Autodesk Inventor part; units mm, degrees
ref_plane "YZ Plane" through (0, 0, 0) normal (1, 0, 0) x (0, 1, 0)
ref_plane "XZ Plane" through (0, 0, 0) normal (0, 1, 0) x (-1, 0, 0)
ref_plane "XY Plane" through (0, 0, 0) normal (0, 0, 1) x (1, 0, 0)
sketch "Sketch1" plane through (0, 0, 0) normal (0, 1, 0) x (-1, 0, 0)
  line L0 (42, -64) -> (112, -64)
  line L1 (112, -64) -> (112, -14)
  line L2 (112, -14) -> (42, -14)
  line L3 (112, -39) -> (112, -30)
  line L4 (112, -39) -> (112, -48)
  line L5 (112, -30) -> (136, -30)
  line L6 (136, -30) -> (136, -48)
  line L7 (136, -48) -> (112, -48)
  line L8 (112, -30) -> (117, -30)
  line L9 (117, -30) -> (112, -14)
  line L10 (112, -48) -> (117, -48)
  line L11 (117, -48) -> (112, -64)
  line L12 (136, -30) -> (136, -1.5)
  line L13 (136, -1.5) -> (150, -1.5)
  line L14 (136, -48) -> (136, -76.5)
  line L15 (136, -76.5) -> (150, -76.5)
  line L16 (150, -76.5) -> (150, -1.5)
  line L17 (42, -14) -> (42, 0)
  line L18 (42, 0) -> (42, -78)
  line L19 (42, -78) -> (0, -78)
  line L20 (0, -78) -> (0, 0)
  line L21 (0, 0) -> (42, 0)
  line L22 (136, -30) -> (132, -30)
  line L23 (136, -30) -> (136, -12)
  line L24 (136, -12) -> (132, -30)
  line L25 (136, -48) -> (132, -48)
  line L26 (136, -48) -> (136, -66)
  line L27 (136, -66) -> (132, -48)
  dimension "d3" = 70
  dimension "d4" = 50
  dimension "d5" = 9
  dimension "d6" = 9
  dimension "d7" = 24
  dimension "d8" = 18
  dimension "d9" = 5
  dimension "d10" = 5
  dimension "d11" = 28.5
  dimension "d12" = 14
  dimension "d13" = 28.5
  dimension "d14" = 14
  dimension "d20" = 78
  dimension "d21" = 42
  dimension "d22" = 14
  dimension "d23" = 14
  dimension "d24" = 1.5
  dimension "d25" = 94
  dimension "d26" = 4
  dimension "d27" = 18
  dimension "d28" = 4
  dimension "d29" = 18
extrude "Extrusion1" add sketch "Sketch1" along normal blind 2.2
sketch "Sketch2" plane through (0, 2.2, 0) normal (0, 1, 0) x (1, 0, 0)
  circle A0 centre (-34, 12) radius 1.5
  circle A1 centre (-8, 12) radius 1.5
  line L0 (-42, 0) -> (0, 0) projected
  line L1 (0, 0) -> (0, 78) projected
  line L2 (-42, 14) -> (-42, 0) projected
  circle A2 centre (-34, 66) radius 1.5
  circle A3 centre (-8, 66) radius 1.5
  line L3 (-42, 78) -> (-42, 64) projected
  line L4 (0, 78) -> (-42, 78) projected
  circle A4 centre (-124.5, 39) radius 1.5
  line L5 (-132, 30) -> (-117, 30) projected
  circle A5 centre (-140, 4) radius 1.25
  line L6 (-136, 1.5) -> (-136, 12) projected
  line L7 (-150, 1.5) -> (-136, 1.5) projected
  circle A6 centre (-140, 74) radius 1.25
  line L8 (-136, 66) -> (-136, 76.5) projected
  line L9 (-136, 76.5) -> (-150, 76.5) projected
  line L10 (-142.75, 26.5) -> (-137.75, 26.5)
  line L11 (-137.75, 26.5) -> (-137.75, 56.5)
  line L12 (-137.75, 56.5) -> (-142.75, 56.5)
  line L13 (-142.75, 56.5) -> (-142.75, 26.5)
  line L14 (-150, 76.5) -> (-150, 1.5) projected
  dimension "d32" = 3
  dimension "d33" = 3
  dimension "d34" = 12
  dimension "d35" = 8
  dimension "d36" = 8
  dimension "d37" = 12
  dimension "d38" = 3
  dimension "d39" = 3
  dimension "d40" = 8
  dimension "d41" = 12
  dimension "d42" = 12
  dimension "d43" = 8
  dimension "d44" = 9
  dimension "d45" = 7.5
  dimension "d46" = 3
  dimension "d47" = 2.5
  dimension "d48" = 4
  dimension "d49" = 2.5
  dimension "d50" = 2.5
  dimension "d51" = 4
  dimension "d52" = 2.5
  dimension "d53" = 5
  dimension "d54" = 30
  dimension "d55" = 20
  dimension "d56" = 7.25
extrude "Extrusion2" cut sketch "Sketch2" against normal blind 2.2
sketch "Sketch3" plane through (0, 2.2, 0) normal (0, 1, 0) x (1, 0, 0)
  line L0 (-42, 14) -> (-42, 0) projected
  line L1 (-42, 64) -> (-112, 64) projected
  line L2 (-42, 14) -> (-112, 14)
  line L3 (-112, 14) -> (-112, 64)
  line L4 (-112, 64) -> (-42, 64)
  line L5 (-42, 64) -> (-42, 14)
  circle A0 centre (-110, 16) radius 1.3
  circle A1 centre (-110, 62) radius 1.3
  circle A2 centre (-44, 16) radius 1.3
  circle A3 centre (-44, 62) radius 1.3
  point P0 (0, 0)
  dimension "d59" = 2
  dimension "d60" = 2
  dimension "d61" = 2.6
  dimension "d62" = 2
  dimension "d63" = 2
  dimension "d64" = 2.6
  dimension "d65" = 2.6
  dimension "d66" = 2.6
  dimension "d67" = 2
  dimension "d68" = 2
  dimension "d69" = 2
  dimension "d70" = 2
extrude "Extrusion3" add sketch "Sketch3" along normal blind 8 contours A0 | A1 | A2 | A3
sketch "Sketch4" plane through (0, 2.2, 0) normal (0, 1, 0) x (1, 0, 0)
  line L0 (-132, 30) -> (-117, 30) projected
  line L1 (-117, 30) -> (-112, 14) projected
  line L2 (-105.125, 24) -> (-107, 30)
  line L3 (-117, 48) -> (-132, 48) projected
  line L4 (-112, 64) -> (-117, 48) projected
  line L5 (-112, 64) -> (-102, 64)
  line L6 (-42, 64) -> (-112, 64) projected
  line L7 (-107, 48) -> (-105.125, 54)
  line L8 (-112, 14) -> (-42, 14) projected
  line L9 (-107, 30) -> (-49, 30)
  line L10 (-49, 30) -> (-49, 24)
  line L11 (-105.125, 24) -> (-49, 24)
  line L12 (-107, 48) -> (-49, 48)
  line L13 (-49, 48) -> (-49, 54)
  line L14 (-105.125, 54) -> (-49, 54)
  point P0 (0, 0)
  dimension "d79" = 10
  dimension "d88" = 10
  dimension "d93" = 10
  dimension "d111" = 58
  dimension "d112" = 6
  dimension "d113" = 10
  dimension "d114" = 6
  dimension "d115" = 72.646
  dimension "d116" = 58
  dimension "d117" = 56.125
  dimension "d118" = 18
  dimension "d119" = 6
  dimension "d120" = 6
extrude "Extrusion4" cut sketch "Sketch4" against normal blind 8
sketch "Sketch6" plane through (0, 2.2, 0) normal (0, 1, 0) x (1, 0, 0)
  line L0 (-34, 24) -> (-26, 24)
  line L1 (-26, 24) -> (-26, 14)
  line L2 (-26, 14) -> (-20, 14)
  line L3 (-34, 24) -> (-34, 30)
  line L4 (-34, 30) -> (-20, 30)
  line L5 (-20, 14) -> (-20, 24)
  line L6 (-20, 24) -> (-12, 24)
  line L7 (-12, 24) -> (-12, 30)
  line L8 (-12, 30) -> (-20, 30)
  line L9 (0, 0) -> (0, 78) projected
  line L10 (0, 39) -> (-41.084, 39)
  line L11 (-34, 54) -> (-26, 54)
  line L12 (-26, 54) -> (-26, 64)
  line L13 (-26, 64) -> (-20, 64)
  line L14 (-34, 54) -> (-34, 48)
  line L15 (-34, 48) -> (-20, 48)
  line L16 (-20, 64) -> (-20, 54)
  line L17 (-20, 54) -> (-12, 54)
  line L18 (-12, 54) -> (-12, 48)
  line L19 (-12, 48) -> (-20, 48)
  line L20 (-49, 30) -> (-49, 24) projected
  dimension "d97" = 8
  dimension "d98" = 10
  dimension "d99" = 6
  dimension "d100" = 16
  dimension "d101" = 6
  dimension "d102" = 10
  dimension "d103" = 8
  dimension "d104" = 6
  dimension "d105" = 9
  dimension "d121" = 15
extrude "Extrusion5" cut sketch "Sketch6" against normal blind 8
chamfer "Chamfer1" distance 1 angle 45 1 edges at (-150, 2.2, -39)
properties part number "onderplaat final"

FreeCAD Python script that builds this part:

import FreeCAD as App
import Part
import Sketcher
Q = App.Units.Quantity


def edges_at(feature, points):
    """Names of the edges that pass closest to the given points."""
    edges = feature.Shape.Edges
    near = lambda p: min(range(len(edges)), key=lambda i: edges[i].distToShape(Part.Vertex(*p))[0])
    return sorted({f"Edge{near(p) + 1}" for p in points})

doc = App.newDocument("Part")
body = doc.addObject("PartDesign::Body", "Body")

# Sketch on XZ plane
sketch1 = body.newObject("Sketcher::SketchObject", "Sketch")
sketch1.AttachmentSupport = (doc.getObject("XZ_Plane"), [""])
sketch1.MapMode = "FlatFace"
sketch1.addGeometry([
    Part.LineSegment(App.Vector(-112, -14, 0), App.Vector(-42, -14, 0)),  # 0
    Part.LineSegment(App.Vector(-42, -14, 0), App.Vector(-42, 0, 0)),  # 1
    Part.LineSegment(App.Vector(-42, 0, 0), App.Vector(0, 0, 0)),  # 2
    Part.LineSegment(App.Vector(0, 0, 0), App.Vector(0, -78, 0)),  # 3
    Part.LineSegment(App.Vector(0, -78, 0), App.Vector(-42, -78, 0)),  # 4
    Part.LineSegment(App.Vector(-42, -78, 0), App.Vector(-42, -64, 0)),  # 5
    Part.LineSegment(App.Vector(-42, -64, 0), App.Vector(-112, -64, 0)),  # 6
    Part.LineSegment(App.Vector(-112, -64, 0), App.Vector(-117, -48, 0)),  # 7
    Part.LineSegment(App.Vector(-117, -48, 0), App.Vector(-132, -48, 0)),  # 8
    Part.LineSegment(App.Vector(-132, -48, 0), App.Vector(-136, -66, 0)),  # 9
    Part.LineSegment(App.Vector(-136, -66, 0), App.Vector(-136, -76, 0)),  # 10
    Part.LineSegment(App.Vector(-136, -76, 0), App.Vector(-150, -76, 0)),  # 11
    Part.LineSegment(App.Vector(-150, -76, 0), App.Vector(-150, -2, 0)),  # 12
    Part.LineSegment(App.Vector(-150, -2, 0), App.Vector(-136, -2, 0)),  # 13
    Part.LineSegment(App.Vector(-136, -2, 0), App.Vector(-136, -12, 0)),  # 14
    Part.LineSegment(App.Vector(-136, -12, 0), App.Vector(-132, -30, 0)),  # 15
    Part.LineSegment(App.Vector(-132, -30, 0), App.Vector(-117, -30, 0)),  # 16
    Part.LineSegment(App.Vector(-117, -30, 0), App.Vector(-112, -14, 0)),  # 17
], False)
sketch1.addConstraint([
    Sketcher.Constraint("Coincident", 0, 2, 1, 1),
    Sketcher.Constraint("Coincident", 1, 2, 2, 1),
    Sketcher.Constraint("Coincident", 2, 2, 3, 1),
    Sketcher.Constraint("Coincident", 3, 2, 4, 1),
    Sketcher.Constraint("Coincident", 4, 2, 5, 1),
    Sketcher.Constraint("Coincident", 5, 2, 6, 1),
    Sketcher.Constraint("Coincident", 6, 2, 7, 1),
    Sketcher.Constraint("Coincident", 7, 2, 8, 1),
    Sketcher.Constraint("Coincident", 8, 2, 9, 1),
    Sketcher.Constraint("Coincident", 9, 2, 10, 1),
    Sketcher.Constraint("Coincident", 10, 2, 11, 1),
    Sketcher.Constraint("Coincident", 11, 2, 12, 1),
    Sketcher.Constraint("Coincident", 12, 2, 13, 1),
    Sketcher.Constraint("Coincident", 13, 2, 14, 1),
    Sketcher.Constraint("Coincident", 14, 2, 15, 1),
    Sketcher.Constraint("Coincident", 15, 2, 16, 1),
    Sketcher.Constraint("Coincident", 16, 2, 17, 1),
    Sketcher.Constraint("Coincident", 17, 2, 0, 1),
    Sketcher.Constraint("Horizontal", 0),
    Sketcher.Constraint("Vertical", 1),
    Sketcher.Constraint("Horizontal", 2),
    Sketcher.Constraint("Vertical", 3),
    Sketcher.Constraint("Horizontal", 4),
    Sketcher.Constraint("Vertical", 5),
    Sketcher.Constraint("Horizontal", 6),
    Sketcher.Constraint("Horizontal", 8),
    Sketcher.Constraint("Vertical", 10),
    Sketcher.Constraint("Horizontal", 11),
    Sketcher.Constraint("Vertical", 12),
    Sketcher.Constraint("Horizontal", 13),
    Sketcher.Constraint("Vertical", 14),
    Sketcher.Constraint("Horizontal", 16),
    Sketcher.Constraint("Coincident", 2, 2, -1, 1),
    Sketcher.Constraint("Vertical", 1, 2, 4, 2),
    Sketcher.Constraint("Vertical", 10, 2, 13, 2),
    Sketcher.Constraint("Vertical", 8, 2, 15, 2),
    Sketcher.Constraint("Vertical", 7, 2, 16, 2),
    Sketcher.Constraint("Vertical", 6, 2, 17, 2),
    Sketcher.Constraint("Equal", 13, 1),
    Sketcher.Constraint("Equal", 1, 5),
    Sketcher.Constraint("Equal", 10, 14),
    Sketcher.Constraint("Equal", 9, 15),
    Sketcher.Constraint("Equal", 7, 17),
    Sketcher.Constraint("DistanceX", 0, 1, 0, 2, Q("70 mm")),
    Sketcher.Constraint("DistanceX", 2, 1, 2, 2, Q("42 mm")),
    Sketcher.Constraint("DistanceX", 11, 2, 11, 1, Q("14 mm")),
    Sketcher.Constraint("DistanceY", 3, 2, 3, 1, Q("78 mm")),
    Sketcher.Constraint("DistanceX", 7, 2, 6, 2, Q("5 mm")),
    Sketcher.Constraint("DistanceX", 9, 2, 8, 2, Q("4 mm")),
    Sketcher.Constraint("DistanceY", 9, 2, 8, 2, Q("18 mm")),
    Sketcher.Constraint("DistanceX", 9, 2, 6, 2, Q("24 mm")),
    Sketcher.Constraint("DistanceY", 8, 2, 15, 2, Q("18 mm")),
    Sketcher.Constraint("DistanceY", 12, 2, -1, 1, Q("1.5 mm")),
])
pad1 = body.newObject("PartDesign::Pad", "Pad")
pad1.Profile = sketch1
pad1.Length = 2.2
pad1.Reversed = True

# Sketch on XZ plane
sketch2 = body.newObject("Sketcher::SketchObject", "Sketch001")
sketch2.AttachmentSupport = (doc.getObject("XZ_Plane"), [""])
sketch2.MapMode = "FlatFace"
sketch2.AttachmentOffset = App.Placement(App.Vector(0, 0, -2.2), App.Rotation())
sketch2.addGeometry([
    Part.Circle(App.Vector(-34, -12, 0), App.Vector(0, 0, 1), 1.5),  # 0
    Part.Circle(App.Vector(-8, -12, 0), App.Vector(0, 0, 1), 1.5),  # 1
    Part.Circle(App.Vector(-34, -66, 0), App.Vector(0, 0, 1), 1.5),  # 2
    Part.Circle(App.Vector(-8, -66, 0), App.Vector(0, 0, 1), 1.5),  # 3
    Part.Circle(App.Vector(-124.5, -39, 0), App.Vector(0, 0, 1), 1.5),  # 4
    Part.Circle(App.Vector(-140, -4, 0), App.Vector(0, 0, 1), 1.2),  # 5
    Part.Circle(App.Vector(-140, -74, 0), App.Vector(0, 0, 1), 1.2),  # 6
    Part.LineSegment(App.Vector(-142.8, -56.5, 0), App.Vector(-142.8, -26.5, 0)),  # 7
    Part.LineSegment(App.Vector(-142.8, -26.5, 0), App.Vector(-137.8, -26.5, 0)),  # 8
    Part.LineSegment(App.Vector(-137.8, -26.5, 0), App.Vector(-137.8, -56.5, 0)),  # 9
    Part.LineSegment(App.Vector(-137.8, -56.5, 0), App.Vector(-142.8, -56.5, 0)),  # 10
], False)
sketch2.addConstraint([
    Sketcher.Constraint("Coincident", 7, 2, 8, 1),
    Sketcher.Constraint("Coincident", 8, 2, 9, 1),
    Sketcher.Constraint("Coincident", 9, 2, 10, 1),
    Sketcher.Constraint("Coincident", 10, 2, 7, 1),
    Sketcher.Constraint("Vertical", 7),
    Sketcher.Constraint("Horizontal", 8),
    Sketcher.Constraint("Vertical", 9),
    Sketcher.Constraint("Horizontal", 10),
    Sketcher.Constraint("Equal", 0, 1),
    Sketcher.Constraint("Equal", 1, 2),
    Sketcher.Constraint("Equal", 2, 3),
    Sketcher.Constraint("Equal", 3, 4),
    Sketcher.Constraint("Equal", 5, 6),
    Sketcher.Constraint("Horizontal", 0, 3, 1, 3),
    Sketcher.Constraint("Horizontal", 2, 3, 3, 3),
    Sketcher.Constraint("Vertical", 0, 3, 2, 3),
    Sketcher.Constraint("Vertical", 1, 3, 3, 3),
    Sketcher.Constraint("Vertical", 5, 3, 6, 3),
    Sketcher.Constraint("Diameter", 0, Q("3 mm")),
    Sketcher.Constraint("Diameter", 5, Q("2.5 mm")),
    Sketcher.Constraint("DistanceX", 8, 1, 8, 2, Q("5 mm")),
    Sketcher.Constraint("DistanceY", 7, 1, 7, 2, Q("30 mm")),
    Sketcher.Constraint("DistanceY", 0, 3, -1, 1, Q("12 mm")),
    Sketcher.Constraint("DistanceX", 1, 3, -1, 1, Q("8 mm")),
    Sketcher.Constraint("DistanceY", 5, 3, -1, 1, Q("4 mm")),
    Sketcher.Constraint("DistanceY", 6, 3, 2, 3, Q("8 mm")),
    Sketcher.Constraint("DistanceX", 0, 3, -1, 1, Q("34 mm")),
    Sketcher.Constraint("DistanceY", 2, 3, -1, 1, Q("66 mm")),
    Sketcher.Constraint("DistanceY", 4, 3, -1, 1, Q("39 mm")),
    Sketcher.Constraint("DistanceX", 5, 3, -1, 1, Q("140 mm")),
    Sketcher.Constraint("DistanceX", 4, 3, -1, 1, Q("124.5 mm")),
    Sketcher.Constraint("DistanceY", 7, 2, -1, 1, Q("26.5 mm")),
    Sketcher.Constraint("DistanceX", 7, 2, -1, 1, Q("142.75 mm")),
])
pocket1 = body.newObject("PartDesign::Pocket", "Pocket")
pocket1.Profile = sketch2
pocket1.Length = 2.2
pocket1.Reversed = True

# Sketch on XZ plane
sketch3 = body.newObject("Sketcher::SketchObject", "Sketch002")
sketch3.AttachmentSupport = (doc.getObject("XZ_Plane"), [""])
sketch3.MapMode = "FlatFace"
sketch3.AttachmentOffset = App.Placement(App.Vector(0, 0, -2.2), App.Rotation())
sketch3.addGeometry([
    Part.Circle(App.Vector(-110, -16, 0), App.Vector(0, 0, 1), 1.3),
    Part.Circle(App.Vector(-110, -62, 0), App.Vector(0, 0, 1), 1.3),
    Part.Circle(App.Vector(-44, -16, 0), App.Vector(0, 0, 1), 1.3),
    Part.Circle(App.Vector(-44, -62, 0), App.Vector(0, 0, 1), 1.3),
], False)
sketch3.addConstraint([
    Sketcher.Constraint("Equal", 0, 1),
    Sketcher.Constraint("Equal", 1, 2),
    Sketcher.Constraint("Equal", 2, 3),
    Sketcher.Constraint("Horizontal", 0, 3, 2, 3),
    Sketcher.Constraint("Horizontal", 1, 3, 3, 3),
    Sketcher.Constraint("Vertical", 0, 3, 1, 3),
    Sketcher.Constraint("Vertical", 2, 3, 3, 3),
    Sketcher.Constraint("Diameter", 0, Q("2.6 mm")),
    Sketcher.Constraint("DistanceX", 0, 3, -1, 1, Q("110 mm")),
    Sketcher.Constraint("DistanceY", 0, 3, -1, 1, Q("16 mm")),
    Sketcher.Constraint("DistanceY", 1, 3, -1, 1, Q("62 mm")),
    Sketcher.Constraint("DistanceX", 2, 3, -1, 1, Q("44 mm")),
])
pad2 = body.newObject("PartDesign::Pad", "Pad001")
pad2.Profile = sketch3
pad2.Length = 8
pad2.Reversed = True

# Sketch on XZ plane
sketch4 = body.newObject("Sketcher::SketchObject", "Sketch003")
sketch4.AttachmentSupport = (doc.getObject("XZ_Plane"), [""])
sketch4.MapMode = "FlatFace"
sketch4.AttachmentOffset = App.Placement(App.Vector(0, 0, -2.2), App.Rotation())
sketch4.addGeometry([
    Part.LineSegment(App.Vector(-107, -30, 0), App.Vector(-105, -24, 0)),  # 0
    Part.LineSegment(App.Vector(-105, -24, 0), App.Vector(-49, -24, 0)),  # 1
    Part.LineSegment(App.Vector(-49, -24, 0), App.Vector(-49, -30, 0)),  # 2
    Part.LineSegment(App.Vector(-49, -30, 0), App.Vector(-107, -30, 0)),  # 3
    Part.LineSegment(App.Vector(-105, -54, 0), App.Vector(-107, -48, 0)),  # 4
    Part.LineSegment(App.Vector(-107, -48, 0), App.Vector(-49, -48, 0)),  # 5
    Part.LineSegment(App.Vector(-49, -48, 0), App.Vector(-49, -54, 0)),  # 6
    Part.LineSegment(App.Vector(-49, -54, 0), App.Vector(-105, -54, 0)),  # 7
], False)
sketch4.addConstraint([
    Sketcher.Constraint("Coincident", 0, 2, 1, 1),
    Sketcher.Constraint("Coincident", 1, 2, 2, 1),
    Sketcher.Constraint("Coincident", 2, 2, 3, 1),
    Sketcher.Constraint("Coincident", 3, 2, 0, 1),
    Sketcher.Constraint("Coincident", 4, 2, 5, 1),
    Sketcher.Constraint("Coincident", 5, 2, 6, 1),
    Sketcher.Constraint("Coincident", 6, 2, 7, 1),
    Sketcher.Constraint("Coincident", 7, 2, 4, 1),
    Sketcher.Constraint("Horizontal", 1),
    Sketcher.Constraint("Vertical", 2),
    Sketcher.Constraint("Horizontal", 3),
    Sketcher.Constraint("Horizontal", 5),
    Sketcher.Constraint("Vertical", 6),
    Sketcher.Constraint("Horizontal", 7),
    Sketcher.Constraint("Vertical", 3, 2, 4, 2),
    Sketcher.Constraint("Vertical", 2, 2, 5, 2),
    Sketcher.Constraint("Vertical", 0, 2, 7, 2),
    Sketcher.Constraint("Equal", 2, 6),
    Sketcher.Constraint("DistanceX", 3, 2, 3, 1, Q("58 mm")),
    Sketcher.Constraint("DistanceY", 2, 2, 2, 1, Q("6 mm")),
    Sketcher.Constraint("DistanceY", 4, 2, 3, 2, Q("18 mm")),
    Sketcher.Constraint("DistanceX", 1, 1, 1, 2, Q("56.125 mm")),
    Sketcher.Constraint("DistanceY", 0, 2, -1, 1, Q("24 mm")),
    Sketcher.Constraint("DistanceX", 1, 2, -1, 1, Q("49 mm")),
])
pocket2 = body.newObject("PartDesign::Pocket", "Pocket001")
pocket2.Profile = sketch4
pocket2.Length = 8
pocket2.Reversed = True

# Sketch on XZ plane
sketch5 = body.newObject("Sketcher::SketchObject", "Sketch004")
sketch5.AttachmentSupport = (doc.getObject("XZ_Plane"), [""])
sketch5.MapMode = "FlatFace"
sketch5.AttachmentOffset = App.Placement(App.Vector(0, 0, -2.2), App.Rotation())
sketch5.addGeometry([
    Part.LineSegment(App.Vector(-34, -30, 0), App.Vector(-34, -24, 0)),  # 0
    Part.LineSegment(App.Vector(-34, -24, 0), App.Vector(-26, -24, 0)),  # 1
    Part.LineSegment(App.Vector(-26, -24, 0), App.Vector(-26, -14, 0)),  # 2
    Part.LineSegment(App.Vector(-26, -14, 0), App.Vector(-20, -14, 0)),  # 3
    Part.LineSegment(App.Vector(-20, -14, 0), App.Vector(-20, -24, 0)),  # 4
    Part.LineSegment(App.Vector(-20, -24, 0), App.Vector(-12, -24, 0)),  # 5
    Part.LineSegment(App.Vector(-12, -24, 0), App.Vector(-12, -30, 0)),  # 6
    Part.LineSegment(App.Vector(-12, -30, 0), App.Vector(-34, -30, 0)),  # 7
    Part.LineSegment(App.Vector(-26, -54, 0), App.Vector(-34, -54, 0)),  # 8
    Part.LineSegment(App.Vector(-34, -54, 0), App.Vector(-34, -48, 0)),  # 9
    Part.LineSegment(App.Vector(-34, -48, 0), App.Vector(-12, -48, 0)),  # 10
    Part.LineSegment(App.Vector(-12, -48, 0), App.Vector(-12, -54, 0)),  # 11
    Part.LineSegment(App.Vector(-12, -54, 0), App.Vector(-20, -54, 0)),  # 12
    Part.LineSegment(App.Vector(-20, -54, 0), App.Vector(-20, -64, 0)),  # 13
    Part.LineSegment(App.Vector(-20, -64, 0), App.Vector(-26, -64, 0)),  # 14
    Part.LineSegment(App.Vector(-26, -64, 0), App.Vector(-26, -54, 0)),  # 15
], False)
sketch5.addConstraint([
    Sketcher.Constraint("Coincident", 0, 2, 1, 1),
    Sketcher.Constraint("Coincident", 1, 2, 2, 1),
    Sketcher.Constraint("Coincident", 2, 2, 3, 1),
    Sketcher.Constraint("Coincident", 3, 2, 4, 1),
    Sketcher.Constraint("Coincident", 4, 2, 5, 1),
    Sketcher.Constraint("Coincident", 5, 2, 6, 1),
    Sketcher.Constraint("Coincident", 6, 2, 7, 1),
    Sketcher.Constraint("Coincident", 7, 2, 0, 1),
    Sketcher.Constraint("Coincident", 8, 2, 9, 1),
    Sketcher.Constraint("Coincident", 9, 2, 10, 1),
    Sketcher.Constraint("Coincident", 10, 2, 11, 1),
    Sketcher.Constraint("Coincident", 11, 2, 12, 1),
    Sketcher.Constraint("Coincident", 12, 2, 13, 1),
    Sketcher.Constraint("Coincident", 13, 2, 14, 1),
    Sketcher.Constraint("Coincident", 14, 2, 15, 1),
    Sketcher.Constraint("Coincident", 15, 2, 8, 1),
    Sketcher.Constraint("Vertical", 0),
    Sketcher.Constraint("Horizontal", 1),
    Sketcher.Constraint("Vertical", 2),
    Sketcher.Constraint("Horizontal", 3),
    Sketcher.Constraint("Vertical", 4),
    Sketcher.Constraint("Horizontal", 5),
    Sketcher.Constraint("Vertical", 6),
    Sketcher.Constraint("Horizontal", 7),
    Sketcher.Constraint("Horizontal", 8),
    Sketcher.Constraint("Vertical", 9),
    Sketcher.Constraint("Horizontal", 10),
    Sketcher.Constraint("Vertical", 11),
    Sketcher.Constraint("Horizontal", 12),
    Sketcher.Constraint("Vertical", 13),
    Sketcher.Constraint("Horizontal", 14),
    Sketcher.Constraint("Vertical", 15),
    Sketcher.Constraint("Horizontal", 1, 2, 4, 2),
    Sketcher.Constraint("Horizontal", 8, 2, 11, 2),
    Sketcher.Constraint("Vertical", 7, 2, 8, 2),
    Sketcher.Constraint("Vertical", 6, 2, 10, 2),
    Sketcher.Constraint("Vertical", 4, 2, 12, 2),
    Sketcher.Constraint("Vertical", 2, 2, 14, 2),
    Sketcher.Constraint("Equal", 1, 5),
    Sketcher.Constraint("Equal", 14, 0),
    Sketcher.Constraint("Equal", 6, 9),
    Sketcher.Constraint("Equal", 4, 13),
    Sketcher.Constraint("DistanceX", 1, 1, 1, 2, Q("8 mm")),
    Sketcher.Constraint("DistanceX", 3, 1, 3, 2, Q("6 mm")),
    Sketcher.Constraint("DistanceY", 2, 1, 2, 2, Q("10 mm")),
    Sketcher.Constraint("DistanceX", 0, 2, -1, 1, Q("34 mm")),
    Sketcher.Constraint("DistanceY", 0, 2, -1, 1, Q("24 mm")),
    Sketcher.Constraint("DistanceY", 8, 2, -1, 1, Q("54 mm")),
])
pocket3 = body.newObject("PartDesign::Pocket", "Pocket002")
pocket3.Profile = sketch5
pocket3.Length = 8
pocket3.Reversed = True
doc.recompute()

chamfer = body.newObject("PartDesign::Chamfer", "Chamfer")
chamfer.Base = (pocket3, edges_at(pocket3, [(-150, 2.2, -39)]))
chamfer.Size = 1

doc.recompute()
